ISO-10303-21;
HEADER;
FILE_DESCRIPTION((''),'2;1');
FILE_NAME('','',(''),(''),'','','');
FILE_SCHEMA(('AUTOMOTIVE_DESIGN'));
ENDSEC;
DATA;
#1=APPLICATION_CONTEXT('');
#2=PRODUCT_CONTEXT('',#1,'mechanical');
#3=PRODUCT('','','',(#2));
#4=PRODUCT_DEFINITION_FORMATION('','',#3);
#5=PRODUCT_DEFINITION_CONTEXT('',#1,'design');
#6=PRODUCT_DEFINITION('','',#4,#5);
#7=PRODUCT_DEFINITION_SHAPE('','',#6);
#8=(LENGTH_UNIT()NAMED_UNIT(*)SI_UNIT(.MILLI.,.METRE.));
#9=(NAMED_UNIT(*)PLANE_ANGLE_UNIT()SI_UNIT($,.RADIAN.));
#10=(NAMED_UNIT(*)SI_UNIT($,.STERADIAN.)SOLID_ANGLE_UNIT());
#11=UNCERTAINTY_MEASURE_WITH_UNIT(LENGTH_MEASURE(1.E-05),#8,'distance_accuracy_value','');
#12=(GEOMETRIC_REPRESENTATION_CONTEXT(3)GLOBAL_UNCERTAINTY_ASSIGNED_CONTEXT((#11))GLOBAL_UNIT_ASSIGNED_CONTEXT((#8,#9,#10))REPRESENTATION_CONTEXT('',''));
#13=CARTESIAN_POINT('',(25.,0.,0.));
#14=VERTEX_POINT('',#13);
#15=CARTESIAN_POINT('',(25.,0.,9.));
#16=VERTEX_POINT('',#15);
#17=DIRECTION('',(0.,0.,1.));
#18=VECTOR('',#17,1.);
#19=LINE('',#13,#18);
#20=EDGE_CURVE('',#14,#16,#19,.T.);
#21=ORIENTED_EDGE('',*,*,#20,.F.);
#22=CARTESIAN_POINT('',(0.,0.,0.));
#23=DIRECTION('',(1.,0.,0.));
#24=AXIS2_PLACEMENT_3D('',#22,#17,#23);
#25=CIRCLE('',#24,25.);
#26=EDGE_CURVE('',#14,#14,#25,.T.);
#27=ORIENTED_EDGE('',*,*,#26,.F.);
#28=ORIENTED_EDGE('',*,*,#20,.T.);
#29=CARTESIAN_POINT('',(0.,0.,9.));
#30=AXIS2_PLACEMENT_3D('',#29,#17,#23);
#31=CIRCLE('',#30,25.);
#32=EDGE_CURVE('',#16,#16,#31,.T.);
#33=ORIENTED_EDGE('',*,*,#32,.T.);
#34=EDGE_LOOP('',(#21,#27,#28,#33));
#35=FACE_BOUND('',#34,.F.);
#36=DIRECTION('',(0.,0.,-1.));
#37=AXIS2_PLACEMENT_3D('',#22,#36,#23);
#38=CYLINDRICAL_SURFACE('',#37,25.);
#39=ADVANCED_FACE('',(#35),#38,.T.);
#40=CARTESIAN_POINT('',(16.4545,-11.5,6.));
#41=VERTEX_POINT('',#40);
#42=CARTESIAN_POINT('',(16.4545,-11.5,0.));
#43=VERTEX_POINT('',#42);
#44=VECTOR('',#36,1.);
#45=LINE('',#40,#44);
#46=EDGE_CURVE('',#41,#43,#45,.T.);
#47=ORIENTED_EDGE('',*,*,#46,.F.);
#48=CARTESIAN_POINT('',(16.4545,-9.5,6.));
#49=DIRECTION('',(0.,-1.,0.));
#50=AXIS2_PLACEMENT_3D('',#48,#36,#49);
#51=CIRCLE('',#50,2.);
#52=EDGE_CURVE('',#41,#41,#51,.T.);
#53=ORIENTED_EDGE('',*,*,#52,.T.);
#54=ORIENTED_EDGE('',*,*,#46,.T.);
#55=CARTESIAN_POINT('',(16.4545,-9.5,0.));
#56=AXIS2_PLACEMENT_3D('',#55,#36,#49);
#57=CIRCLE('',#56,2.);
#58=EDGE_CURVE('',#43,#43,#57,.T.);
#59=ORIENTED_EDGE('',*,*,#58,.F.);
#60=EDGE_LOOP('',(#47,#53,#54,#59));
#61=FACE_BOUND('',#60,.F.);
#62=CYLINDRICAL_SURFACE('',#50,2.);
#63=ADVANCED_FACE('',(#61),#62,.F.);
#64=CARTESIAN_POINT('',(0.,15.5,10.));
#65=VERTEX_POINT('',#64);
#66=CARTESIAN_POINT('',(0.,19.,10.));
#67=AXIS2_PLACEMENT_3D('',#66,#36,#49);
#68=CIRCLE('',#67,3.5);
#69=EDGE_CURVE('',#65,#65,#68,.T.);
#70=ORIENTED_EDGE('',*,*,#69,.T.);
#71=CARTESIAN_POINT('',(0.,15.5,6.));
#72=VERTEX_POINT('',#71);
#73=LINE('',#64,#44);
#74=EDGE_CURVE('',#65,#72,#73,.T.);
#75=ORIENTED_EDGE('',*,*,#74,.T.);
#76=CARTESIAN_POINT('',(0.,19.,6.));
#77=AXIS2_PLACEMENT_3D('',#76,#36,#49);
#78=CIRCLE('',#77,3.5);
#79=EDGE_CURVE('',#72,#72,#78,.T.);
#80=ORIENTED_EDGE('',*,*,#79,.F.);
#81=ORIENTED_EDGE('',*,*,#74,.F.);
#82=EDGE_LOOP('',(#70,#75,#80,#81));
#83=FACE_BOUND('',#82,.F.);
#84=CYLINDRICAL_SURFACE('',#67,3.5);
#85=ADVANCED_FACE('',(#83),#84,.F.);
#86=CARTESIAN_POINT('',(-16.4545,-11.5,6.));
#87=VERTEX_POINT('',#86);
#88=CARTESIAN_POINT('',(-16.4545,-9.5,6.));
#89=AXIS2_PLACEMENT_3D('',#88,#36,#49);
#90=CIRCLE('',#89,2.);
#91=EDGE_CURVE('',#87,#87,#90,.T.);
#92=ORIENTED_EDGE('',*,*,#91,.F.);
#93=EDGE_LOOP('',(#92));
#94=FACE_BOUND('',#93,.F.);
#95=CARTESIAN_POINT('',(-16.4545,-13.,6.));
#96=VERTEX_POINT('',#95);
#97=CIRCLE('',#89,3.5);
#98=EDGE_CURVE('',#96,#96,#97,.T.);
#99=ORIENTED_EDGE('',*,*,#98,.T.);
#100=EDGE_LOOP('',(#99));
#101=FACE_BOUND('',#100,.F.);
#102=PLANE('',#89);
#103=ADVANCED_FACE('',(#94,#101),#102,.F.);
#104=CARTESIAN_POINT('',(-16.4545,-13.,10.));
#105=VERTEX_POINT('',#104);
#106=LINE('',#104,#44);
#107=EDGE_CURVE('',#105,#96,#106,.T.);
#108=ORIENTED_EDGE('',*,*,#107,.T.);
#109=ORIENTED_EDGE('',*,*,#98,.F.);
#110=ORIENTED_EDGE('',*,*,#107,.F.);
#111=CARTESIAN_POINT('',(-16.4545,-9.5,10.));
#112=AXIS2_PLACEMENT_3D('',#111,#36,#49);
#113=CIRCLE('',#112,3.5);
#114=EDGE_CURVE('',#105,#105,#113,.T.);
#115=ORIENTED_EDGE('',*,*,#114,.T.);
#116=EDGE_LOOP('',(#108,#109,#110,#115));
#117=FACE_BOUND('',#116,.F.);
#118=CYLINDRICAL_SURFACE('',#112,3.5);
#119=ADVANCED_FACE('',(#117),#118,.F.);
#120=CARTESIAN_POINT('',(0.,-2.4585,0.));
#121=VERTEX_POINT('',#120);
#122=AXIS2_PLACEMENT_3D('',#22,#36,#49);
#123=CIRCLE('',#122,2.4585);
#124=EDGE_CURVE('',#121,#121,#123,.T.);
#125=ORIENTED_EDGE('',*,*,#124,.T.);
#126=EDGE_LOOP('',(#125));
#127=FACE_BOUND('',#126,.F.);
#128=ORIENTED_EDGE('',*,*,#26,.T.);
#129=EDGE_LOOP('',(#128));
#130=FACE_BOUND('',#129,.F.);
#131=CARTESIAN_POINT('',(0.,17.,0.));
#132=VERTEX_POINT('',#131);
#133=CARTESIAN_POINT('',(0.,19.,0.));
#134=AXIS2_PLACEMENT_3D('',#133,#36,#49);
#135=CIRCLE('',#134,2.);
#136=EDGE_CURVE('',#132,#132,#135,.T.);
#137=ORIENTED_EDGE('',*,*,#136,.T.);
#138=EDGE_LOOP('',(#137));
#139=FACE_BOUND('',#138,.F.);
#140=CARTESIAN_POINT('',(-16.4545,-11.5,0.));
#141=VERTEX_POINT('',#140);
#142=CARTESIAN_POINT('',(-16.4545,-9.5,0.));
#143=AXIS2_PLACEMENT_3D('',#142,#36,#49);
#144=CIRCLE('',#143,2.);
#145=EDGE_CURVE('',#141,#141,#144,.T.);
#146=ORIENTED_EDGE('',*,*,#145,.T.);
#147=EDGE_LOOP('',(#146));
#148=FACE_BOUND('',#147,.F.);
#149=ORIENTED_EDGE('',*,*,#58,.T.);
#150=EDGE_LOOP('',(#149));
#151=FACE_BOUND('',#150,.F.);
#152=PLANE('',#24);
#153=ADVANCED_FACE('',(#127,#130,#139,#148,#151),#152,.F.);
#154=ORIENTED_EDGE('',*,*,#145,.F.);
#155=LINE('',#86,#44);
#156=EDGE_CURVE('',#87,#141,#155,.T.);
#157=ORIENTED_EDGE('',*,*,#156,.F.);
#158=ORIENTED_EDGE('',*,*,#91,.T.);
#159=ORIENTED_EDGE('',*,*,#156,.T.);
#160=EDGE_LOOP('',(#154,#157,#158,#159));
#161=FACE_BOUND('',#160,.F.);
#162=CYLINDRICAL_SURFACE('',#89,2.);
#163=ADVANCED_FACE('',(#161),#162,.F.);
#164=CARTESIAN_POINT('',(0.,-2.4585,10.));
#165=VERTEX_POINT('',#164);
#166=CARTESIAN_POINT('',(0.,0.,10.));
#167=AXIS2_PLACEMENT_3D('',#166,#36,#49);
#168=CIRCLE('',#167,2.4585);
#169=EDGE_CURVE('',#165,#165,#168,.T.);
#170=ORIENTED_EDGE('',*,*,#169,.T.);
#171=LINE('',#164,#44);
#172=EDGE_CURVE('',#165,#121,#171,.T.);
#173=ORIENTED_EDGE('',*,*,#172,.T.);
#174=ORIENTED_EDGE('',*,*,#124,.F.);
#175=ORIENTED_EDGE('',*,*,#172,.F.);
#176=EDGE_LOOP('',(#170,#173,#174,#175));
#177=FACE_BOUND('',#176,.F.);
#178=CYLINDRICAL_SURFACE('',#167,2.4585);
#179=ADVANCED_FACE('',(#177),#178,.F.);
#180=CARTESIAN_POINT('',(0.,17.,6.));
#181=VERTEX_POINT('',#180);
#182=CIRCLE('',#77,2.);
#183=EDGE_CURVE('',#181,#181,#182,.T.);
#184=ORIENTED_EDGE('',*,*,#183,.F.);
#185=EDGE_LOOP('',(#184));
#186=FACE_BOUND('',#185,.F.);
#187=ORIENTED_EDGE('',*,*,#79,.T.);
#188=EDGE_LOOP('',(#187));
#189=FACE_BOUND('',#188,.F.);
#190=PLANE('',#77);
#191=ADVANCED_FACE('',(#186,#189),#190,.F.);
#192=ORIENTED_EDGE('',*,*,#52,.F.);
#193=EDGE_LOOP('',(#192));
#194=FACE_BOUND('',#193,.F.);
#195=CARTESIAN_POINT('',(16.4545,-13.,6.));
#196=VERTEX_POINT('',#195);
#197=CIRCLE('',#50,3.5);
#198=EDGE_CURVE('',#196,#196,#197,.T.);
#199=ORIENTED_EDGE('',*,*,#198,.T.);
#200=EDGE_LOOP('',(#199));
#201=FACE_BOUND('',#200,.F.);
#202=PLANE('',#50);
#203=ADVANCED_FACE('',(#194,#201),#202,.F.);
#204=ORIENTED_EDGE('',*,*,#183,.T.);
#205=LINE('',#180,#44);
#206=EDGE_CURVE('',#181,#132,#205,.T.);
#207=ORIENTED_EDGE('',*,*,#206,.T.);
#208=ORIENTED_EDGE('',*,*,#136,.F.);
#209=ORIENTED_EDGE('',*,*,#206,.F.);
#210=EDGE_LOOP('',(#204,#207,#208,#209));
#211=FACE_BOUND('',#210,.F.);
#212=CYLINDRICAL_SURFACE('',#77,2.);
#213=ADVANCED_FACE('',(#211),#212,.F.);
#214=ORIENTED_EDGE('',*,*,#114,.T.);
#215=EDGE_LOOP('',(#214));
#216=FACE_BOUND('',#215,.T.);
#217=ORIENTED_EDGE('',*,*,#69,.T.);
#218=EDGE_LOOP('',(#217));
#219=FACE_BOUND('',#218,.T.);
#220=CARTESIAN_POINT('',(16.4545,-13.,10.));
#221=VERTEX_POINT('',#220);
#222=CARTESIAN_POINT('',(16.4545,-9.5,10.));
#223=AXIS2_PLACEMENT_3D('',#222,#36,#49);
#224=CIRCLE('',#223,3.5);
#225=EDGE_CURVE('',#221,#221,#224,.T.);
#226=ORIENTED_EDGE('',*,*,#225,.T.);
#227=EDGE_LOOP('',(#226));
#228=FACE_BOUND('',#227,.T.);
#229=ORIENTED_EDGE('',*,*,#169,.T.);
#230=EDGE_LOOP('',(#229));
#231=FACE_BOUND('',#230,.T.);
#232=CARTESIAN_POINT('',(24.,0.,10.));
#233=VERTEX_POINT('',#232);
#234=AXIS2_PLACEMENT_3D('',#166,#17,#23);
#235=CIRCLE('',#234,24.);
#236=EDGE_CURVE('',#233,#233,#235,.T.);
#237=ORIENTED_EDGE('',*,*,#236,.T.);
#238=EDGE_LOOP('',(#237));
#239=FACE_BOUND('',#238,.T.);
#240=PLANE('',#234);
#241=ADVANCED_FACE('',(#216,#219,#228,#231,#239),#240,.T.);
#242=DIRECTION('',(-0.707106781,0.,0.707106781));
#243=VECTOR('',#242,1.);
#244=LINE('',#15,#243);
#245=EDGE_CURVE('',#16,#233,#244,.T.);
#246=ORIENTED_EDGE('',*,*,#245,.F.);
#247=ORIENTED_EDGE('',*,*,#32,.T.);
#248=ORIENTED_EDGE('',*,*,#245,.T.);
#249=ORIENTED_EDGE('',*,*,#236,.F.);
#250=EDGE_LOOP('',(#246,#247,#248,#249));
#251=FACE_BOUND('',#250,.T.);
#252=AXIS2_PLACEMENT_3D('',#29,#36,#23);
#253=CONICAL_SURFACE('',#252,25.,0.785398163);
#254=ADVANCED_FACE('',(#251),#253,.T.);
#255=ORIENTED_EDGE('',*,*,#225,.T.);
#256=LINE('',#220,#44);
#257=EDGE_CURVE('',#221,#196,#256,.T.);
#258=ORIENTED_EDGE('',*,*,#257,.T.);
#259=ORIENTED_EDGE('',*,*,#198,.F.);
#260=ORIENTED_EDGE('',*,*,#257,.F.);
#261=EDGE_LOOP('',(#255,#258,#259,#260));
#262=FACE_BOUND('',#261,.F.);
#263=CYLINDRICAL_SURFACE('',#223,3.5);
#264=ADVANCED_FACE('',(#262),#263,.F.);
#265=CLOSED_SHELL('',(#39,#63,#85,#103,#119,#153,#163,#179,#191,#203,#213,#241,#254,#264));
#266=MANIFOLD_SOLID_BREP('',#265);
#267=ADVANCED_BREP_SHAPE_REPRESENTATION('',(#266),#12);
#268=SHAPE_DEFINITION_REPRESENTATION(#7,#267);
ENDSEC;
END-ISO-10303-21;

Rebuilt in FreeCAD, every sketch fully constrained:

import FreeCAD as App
import Part
import Sketcher


def edges_at(feature, points):
    """Names of the edges that pass closest to the given points."""
    edges = feature.Shape.Edges
    near = lambda p: min(range(len(edges)), key=lambda i: edges[i].distToShape(Part.Vertex(*p))[0])
    return sorted({f"Edge{near(p) + 1}" for p in points})

doc = App.newDocument("Part")
body = doc.addObject("PartDesign::Body", "Body")

sketch1 = body.newObject("Sketcher::SketchObject", "Sketch")
sketch1.AttachmentSupport = (doc.getObject("XY_Plane"), [""])
sketch1.MapMode = "FlatFace"
sketch1.addGeometry(Part.Circle(App.Vector(0, 0, 0), App.Vector(0, 0, 1), 25), False)
sketch1.addConstraint([
    Sketcher.Constraint("Coincident", 0, 3, -1, 1),
    Sketcher.Constraint("Diameter", 0, 50.0),
])
pad1 = body.newObject("PartDesign::Pad", "Pad")
pad1.Profile = sketch1
pad1.Length = 10

sketch2 = body.newObject("Sketcher::SketchObject", "Sketch001")
sketch2.AttachmentSupport = (doc.getObject("XY_Plane"), [""])
sketch2.MapMode = "FlatFace"
sketch2.AttachmentOffset = App.Placement(App.Vector(0, 0, 10), App.Rotation())
sketch2.addGeometry(Part.Circle(App.Vector(0, 0, 0), App.Vector(0, 0, 1), 2.4585), False)
sketch2.addConstraint([
    Sketcher.Constraint("Coincident", 0, 3, -1, 1),
    Sketcher.Constraint("Diameter", 0, 4.917),
])
doc.recompute()
hole = body.newObject("PartDesign::Hole", "Hole")
hole.Profile = sketch2
hole.ThreadType = "None"
hole.Diameter = 4.917
hole.DepthType = "ThroughAll"

sketch3 = body.newObject("Sketcher::SketchObject", "Sketch002")
sketch3.AttachmentSupport = (doc.getObject("XY_Plane"), [""])
sketch3.MapMode = "FlatFace"
sketch3.AttachmentOffset = App.Placement(App.Vector(0, 0, 10), App.Rotation())
sketch3.addGeometry([
    Part.Circle(App.Vector(0, 19, 0), App.Vector(0, 0, 1), 2),
    Part.Circle(App.Vector(-16.4545, -9.5, 0), App.Vector(0, 0, 1), 2),
    Part.Circle(App.Vector(16.4545, -9.5, 0), App.Vector(0, 0, 1), 2),
], False)
sketch3.addConstraint([
    Sketcher.Constraint("Equal", 0, 1),
    Sketcher.Constraint("Equal", 1, 2),
    Sketcher.Constraint("Symmetric", 1, 3, 2, 3, -2),
    Sketcher.Constraint("PointOnObject", 0, 3, -2),
    Sketcher.Constraint("Diameter", 0, 4.0),
    Sketcher.Constraint("DistanceY", -1, 1, 0, 3, 19.0),
    Sketcher.Constraint("DistanceY", 1, 3, -1, 1, 9.5),
    Sketcher.Constraint("DistanceX", 1, 3, 2, 3, 32.909),
])
doc.recompute()
hole2 = body.newObject("PartDesign::Hole", "Hole001")
hole2.Profile = sketch3
hole2.ThreadType = "None"
hole2.Diameter = 4
hole2.DepthType = "ThroughAll"
hole2.HoleCutType = "Counterbore"
hole2.HoleCutDiameter = 7
hole2.HoleCutDepth = 4
doc.recompute()

chamfer = body.newObject("PartDesign::Chamfer", "Chamfer")
chamfer.Base = (hole2, edges_at(hole2, [(-25, 0, 10)]))
chamfer.Size = 1

doc.recompute()
